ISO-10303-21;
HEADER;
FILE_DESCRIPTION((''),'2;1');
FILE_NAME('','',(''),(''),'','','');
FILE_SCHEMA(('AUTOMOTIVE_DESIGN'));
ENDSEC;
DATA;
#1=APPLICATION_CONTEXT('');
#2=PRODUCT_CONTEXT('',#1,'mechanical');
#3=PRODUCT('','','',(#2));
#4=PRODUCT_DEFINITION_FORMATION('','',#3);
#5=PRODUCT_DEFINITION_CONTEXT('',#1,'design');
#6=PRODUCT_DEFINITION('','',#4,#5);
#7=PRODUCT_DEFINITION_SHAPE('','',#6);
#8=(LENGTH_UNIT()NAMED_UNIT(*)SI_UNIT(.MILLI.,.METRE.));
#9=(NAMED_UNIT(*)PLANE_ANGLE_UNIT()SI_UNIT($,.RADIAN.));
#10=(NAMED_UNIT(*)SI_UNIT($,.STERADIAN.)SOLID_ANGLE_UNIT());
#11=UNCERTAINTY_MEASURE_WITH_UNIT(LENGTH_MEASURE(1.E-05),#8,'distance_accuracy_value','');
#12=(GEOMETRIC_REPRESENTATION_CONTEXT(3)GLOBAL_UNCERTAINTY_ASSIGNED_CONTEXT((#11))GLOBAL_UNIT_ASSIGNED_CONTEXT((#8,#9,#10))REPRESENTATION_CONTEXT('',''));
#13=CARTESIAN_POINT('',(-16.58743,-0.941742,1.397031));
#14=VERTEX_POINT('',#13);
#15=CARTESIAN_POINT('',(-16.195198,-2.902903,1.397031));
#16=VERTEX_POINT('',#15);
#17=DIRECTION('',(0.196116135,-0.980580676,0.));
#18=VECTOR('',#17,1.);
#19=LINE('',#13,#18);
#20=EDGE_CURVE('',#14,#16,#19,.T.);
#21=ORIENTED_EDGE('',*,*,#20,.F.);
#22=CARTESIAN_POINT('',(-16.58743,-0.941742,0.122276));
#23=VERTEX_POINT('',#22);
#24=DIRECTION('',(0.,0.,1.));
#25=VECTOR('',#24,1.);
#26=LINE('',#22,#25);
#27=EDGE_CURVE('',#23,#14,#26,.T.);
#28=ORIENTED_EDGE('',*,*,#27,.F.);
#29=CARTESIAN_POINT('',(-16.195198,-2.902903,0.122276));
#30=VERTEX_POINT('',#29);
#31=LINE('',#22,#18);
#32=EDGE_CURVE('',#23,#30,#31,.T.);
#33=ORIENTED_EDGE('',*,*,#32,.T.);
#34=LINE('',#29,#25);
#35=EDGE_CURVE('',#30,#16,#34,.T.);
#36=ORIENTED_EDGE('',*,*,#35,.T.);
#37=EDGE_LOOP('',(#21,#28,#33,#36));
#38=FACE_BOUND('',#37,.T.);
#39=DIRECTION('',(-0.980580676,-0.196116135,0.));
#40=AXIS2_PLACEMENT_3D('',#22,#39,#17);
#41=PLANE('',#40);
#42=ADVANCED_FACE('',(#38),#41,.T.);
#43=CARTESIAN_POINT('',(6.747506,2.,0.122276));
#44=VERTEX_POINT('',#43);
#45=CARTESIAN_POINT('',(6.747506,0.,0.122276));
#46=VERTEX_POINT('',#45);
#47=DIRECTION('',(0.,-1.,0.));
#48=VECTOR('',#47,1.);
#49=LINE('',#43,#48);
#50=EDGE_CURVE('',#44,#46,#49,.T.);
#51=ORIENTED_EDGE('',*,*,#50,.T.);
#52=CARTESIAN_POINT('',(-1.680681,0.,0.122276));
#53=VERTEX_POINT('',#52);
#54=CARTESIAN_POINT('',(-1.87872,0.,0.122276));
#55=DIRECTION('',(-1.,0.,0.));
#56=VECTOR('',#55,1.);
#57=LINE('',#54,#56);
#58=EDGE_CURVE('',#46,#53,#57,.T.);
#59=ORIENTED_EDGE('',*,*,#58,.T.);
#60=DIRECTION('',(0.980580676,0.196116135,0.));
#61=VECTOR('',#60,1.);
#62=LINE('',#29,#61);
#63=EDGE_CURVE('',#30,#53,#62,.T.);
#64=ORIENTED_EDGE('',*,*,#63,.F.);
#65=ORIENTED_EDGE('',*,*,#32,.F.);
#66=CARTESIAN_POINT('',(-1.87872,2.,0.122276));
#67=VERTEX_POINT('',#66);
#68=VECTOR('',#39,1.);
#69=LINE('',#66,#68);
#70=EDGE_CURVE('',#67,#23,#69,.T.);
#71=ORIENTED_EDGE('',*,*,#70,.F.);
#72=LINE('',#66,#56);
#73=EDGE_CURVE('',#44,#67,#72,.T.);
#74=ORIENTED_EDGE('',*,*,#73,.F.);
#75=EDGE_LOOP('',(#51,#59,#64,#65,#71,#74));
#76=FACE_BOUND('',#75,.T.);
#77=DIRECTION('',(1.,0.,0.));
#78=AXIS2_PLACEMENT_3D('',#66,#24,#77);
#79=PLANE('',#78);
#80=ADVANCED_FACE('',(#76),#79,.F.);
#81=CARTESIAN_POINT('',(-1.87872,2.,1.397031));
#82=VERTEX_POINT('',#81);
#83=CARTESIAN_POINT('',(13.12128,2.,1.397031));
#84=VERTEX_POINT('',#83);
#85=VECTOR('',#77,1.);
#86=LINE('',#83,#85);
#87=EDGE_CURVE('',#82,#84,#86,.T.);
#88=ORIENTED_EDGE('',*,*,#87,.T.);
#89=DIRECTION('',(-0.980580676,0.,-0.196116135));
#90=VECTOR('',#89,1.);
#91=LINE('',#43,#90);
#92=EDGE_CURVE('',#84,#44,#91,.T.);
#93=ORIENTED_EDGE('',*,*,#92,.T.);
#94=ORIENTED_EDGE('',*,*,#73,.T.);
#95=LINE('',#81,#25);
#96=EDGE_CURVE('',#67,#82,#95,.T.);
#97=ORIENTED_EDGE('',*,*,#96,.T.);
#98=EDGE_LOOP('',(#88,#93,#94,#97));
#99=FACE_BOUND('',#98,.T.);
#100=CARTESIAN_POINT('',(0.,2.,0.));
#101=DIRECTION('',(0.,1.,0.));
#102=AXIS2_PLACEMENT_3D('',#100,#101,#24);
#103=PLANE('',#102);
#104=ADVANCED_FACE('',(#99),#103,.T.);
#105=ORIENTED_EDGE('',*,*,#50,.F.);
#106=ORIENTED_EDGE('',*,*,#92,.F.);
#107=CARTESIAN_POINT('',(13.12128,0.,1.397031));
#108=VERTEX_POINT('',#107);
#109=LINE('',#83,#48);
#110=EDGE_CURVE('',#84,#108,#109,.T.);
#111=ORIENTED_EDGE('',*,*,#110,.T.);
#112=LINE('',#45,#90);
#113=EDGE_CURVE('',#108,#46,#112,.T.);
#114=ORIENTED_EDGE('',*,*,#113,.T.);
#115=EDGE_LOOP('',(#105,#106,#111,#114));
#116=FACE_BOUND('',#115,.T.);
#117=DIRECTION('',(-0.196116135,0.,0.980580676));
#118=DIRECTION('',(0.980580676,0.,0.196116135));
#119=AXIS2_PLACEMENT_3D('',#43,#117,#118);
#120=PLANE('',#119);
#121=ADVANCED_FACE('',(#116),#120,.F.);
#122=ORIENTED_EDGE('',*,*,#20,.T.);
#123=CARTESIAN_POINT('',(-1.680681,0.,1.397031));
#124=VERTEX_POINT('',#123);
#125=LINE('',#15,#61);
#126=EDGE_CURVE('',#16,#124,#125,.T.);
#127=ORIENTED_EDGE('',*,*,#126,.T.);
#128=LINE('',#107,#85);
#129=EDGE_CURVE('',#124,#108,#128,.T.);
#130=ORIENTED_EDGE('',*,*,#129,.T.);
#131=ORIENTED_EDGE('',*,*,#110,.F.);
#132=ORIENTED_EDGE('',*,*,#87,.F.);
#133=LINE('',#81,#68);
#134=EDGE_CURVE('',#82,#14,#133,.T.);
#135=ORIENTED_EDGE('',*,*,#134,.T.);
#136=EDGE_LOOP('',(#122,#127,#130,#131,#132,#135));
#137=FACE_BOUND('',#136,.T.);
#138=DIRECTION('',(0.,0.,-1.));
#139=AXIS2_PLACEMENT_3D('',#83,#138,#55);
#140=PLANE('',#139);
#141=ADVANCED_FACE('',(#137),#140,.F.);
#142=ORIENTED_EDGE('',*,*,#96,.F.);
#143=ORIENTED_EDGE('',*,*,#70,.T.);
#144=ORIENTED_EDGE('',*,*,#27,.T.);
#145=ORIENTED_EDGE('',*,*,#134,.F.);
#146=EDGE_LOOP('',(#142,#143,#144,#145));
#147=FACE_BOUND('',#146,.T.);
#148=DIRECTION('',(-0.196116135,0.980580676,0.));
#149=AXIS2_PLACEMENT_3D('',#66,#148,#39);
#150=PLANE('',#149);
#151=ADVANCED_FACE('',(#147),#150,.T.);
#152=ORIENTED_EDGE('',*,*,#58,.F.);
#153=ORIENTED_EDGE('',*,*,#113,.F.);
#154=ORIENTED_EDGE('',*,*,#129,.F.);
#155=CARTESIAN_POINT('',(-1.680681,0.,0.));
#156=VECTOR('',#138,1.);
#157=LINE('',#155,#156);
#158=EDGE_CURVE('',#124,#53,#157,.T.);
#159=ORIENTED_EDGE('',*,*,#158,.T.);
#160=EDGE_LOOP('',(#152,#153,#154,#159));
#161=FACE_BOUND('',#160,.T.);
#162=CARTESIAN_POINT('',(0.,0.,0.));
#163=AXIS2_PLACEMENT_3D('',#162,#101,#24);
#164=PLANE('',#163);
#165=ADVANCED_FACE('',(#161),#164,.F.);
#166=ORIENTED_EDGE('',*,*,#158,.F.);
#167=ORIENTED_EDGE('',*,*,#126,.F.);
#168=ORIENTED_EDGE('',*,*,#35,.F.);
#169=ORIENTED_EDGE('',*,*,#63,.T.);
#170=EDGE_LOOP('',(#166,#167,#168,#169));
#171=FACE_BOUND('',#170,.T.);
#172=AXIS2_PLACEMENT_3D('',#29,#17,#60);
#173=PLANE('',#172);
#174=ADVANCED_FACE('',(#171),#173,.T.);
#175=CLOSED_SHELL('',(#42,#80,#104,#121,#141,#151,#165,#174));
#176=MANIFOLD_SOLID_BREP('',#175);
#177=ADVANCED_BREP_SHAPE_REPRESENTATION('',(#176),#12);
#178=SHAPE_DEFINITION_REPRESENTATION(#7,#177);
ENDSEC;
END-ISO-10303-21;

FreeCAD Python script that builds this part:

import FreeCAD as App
import Part
import Sketcher

V = App.Vector


def add_polygon(sketch, points):
    """Adds a closed chain of lines whose ends are joined by coincident constraints."""
    first, n = sketch.GeometryCount, len(points)
    for a, b in zip(points, points[1:] + points[:1]):
        sketch.addGeometry(Part.LineSegment(App.Vector(*a, 0), App.Vector(*b, 0)), False)
    for i in range(n):
        sketch.addConstraint(Sketcher.Constraint("Coincident", first + i, 2, first + (i + 1) % n, 1))

doc = App.newDocument("Part")
body = doc.addObject("PartDesign::Body", "Body")

sketch1 = body.newObject("Sketcher::SketchObject", "Sketch")
sketch1.AttachmentSupport = (doc.getObject("XZ_Plane"), [""])
sketch1.MapMode = "FlatFace"
add_polygon(sketch1, [(-1.87872, 0.122276), (-1.87872, 1.397031), (13.12128, 1.397031), (6.747506, 0.122276)])
sketch1.addConstraint([
    Sketcher.Constraint("Vertical", 0),
    Sketcher.Constraint("Horizontal", 1),
    Sketcher.Constraint("Horizontal", 3),
    Sketcher.Constraint("DistanceX", 1, 1, 1, 2, 15.0),
    Sketcher.Constraint("Distance", 2, 6.5),
    Sketcher.Constraint("DistanceX", 3, 2, 3, 1, 8.626226),
    Sketcher.Constraint("DistanceX", 0, 2, -1, 1, 1.87872),
    Sketcher.Constraint("DistanceY", -1, 1, 0, 2, 1.397031),
])
pad1 = body.newObject("PartDesign::Pad", "Pad")
pad1.Profile = sketch1
pad1.Length = 2
pad1.Reversed = True

sketch2 = body.newObject("Sketcher::SketchObject", "Sketch001")
sketch2.AttachmentSupport = (doc.getObject("XY_Plane"), [""])
sketch2.MapMode = "FlatFace"
sketch2.AttachmentOffset = App.Placement(V(0, 0, 1.397031), App.Rotation())
add_polygon(sketch2, [(-1.87872, 2), (-16.58743, -0.941742), (-16.195198, -2.902903), (-1.486487, 0.038839)])
sketch2.addConstraint([
    Sketcher.Constraint("Perpendicular", 0, 1),
    Sketcher.Constraint("Perpendicular", 1, 2),
    Sketcher.Constraint("Perpendicular", 2, 3),
    Sketcher.Constraint("Distance", 0, 15.0),
    Sketcher.Constraint("Distance", 1, 2.0),
    Sketcher.Constraint("DistanceY", -1, 1, 3, 2, 2.0),
    Sketcher.Constraint("DistanceX", 0, 2, -1, 1, 16.58743),
    Sketcher.Constraint("DistanceY", -1, 1, 2, 2, 0.038839),
])
pad2 = body.newObject("PartDesign::Pad", "Pad001")
pad2.Profile = sketch2
pad2.Length = 1.274755
pad2.Reversed = True

doc.recompute()
